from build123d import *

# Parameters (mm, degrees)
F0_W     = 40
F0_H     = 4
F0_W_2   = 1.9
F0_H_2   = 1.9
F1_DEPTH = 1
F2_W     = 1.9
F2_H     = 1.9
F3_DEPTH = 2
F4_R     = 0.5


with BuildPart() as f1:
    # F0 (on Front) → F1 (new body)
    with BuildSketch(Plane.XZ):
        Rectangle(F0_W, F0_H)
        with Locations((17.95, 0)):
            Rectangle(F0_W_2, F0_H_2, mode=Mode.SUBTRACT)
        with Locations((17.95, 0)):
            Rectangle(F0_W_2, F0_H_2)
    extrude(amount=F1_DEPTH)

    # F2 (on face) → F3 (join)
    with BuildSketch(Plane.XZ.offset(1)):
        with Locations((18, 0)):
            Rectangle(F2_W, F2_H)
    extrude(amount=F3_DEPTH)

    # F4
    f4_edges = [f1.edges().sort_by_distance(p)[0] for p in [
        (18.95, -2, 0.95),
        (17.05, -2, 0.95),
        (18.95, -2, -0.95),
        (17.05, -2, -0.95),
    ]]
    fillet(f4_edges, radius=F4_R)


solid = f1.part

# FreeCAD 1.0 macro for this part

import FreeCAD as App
import Part
import Sketcher
from FreeCAD import Vector


def edges_at(feature, points):
    """Names of the edges that pass closest to the given points."""
    edges = feature.Shape.Edges
    near = lambda p: min(range(len(edges)), key=lambda i: edges[i].distToShape(Part.Vertex(*p))[0])
    return sorted({f"Edge{near(p) + 1}" for p in points})


def add_polygon(sketch, points):
    """Adds a closed chain of lines whose ends are joined by coincident constraints."""
    first, n = sketch.GeometryCount, len(points)
    for a, b in zip(points, points[1:] + points[:1]):
        sketch.addGeometry(Part.LineSegment(App.Vector(*a, 0), App.Vector(*b, 0)), False)
    for i in range(n):
        sketch.addConstraint(Sketcher.Constraint("Coincident", first + i, 2, first + (i + 1) % n, 1))

doc = App.newDocument("Part")
body = doc.addObject("PartDesign::Body", "Body")

# Sketch on XZ plane
sketch1 = doc.addObject("Sketcher::SketchObject", "Sketch")
body.addObject(sketch1)
sketch1.AttachmentSupport = (doc.XZ_Plane, [""])
sketch1.MapMode = "FlatFace"
add_polygon(sketch1, [(-20, 2), (-20, -2), (20, -2), (20, 2)])  # lines 0-3
sketch1.addConstraint(Sketcher.Constraint("Vertical", 0))
sketch1.addConstraint(Sketcher.Constraint("Horizontal", 1))
sketch1.addConstraint(Sketcher.Constraint("Vertical", 2))
sketch1.addConstraint(Sketcher.Constraint("Horizontal", 3))
sketch1.addConstraint(Sketcher.Constraint("Symmetric", 0, 2, 2, 2, -1, 1))
sketch1.addConstraint(Sketcher.Constraint("DistanceX", 1, 1, 1, 2, 40.0))
sketch1.addConstraint(Sketcher.Constraint("DistanceY", 0, 2, 0, 1, 4.0))
pad1 = doc.addObject("PartDesign::Pad", "Pad")
body.addObject(pad1)
pad1.Profile = sketch1
pad1.Length = 1

# Sketch on XZ plane
sketch2 = doc.addObject("Sketcher::SketchObject", "Sketch001")
body.addObject(sketch2)
sketch2.AttachmentSupport = (doc.XZ_Plane, [""])
sketch2.MapMode = "FlatFace"
sketch2.AttachmentOffset = App.Placement(Vector(0, 0, 1), App.Rotation())
add_polygon(sketch2, [(17.1, 0.9), (17.1, -0.9), (18.9, -0.9), (18.9, 0.9)])  # lines 0-3
sketch2.addConstraint(Sketcher.Constraint("Vertical", 0))
sketch2.addConstraint(Sketcher.Constraint("Horizontal", 1))
sketch2.addConstraint(Sketcher.Constraint("Vertical", 2))
sketch2.addConstraint(Sketcher.Constraint("Horizontal", 3))
sketch2.addConstraint(Sketcher.Constraint("Equal", 3, 0))
sketch2.addConstraint(Sketcher.Constraint("DistanceX", 1, 1, 1, 2, 1.9))
sketch2.addConstraint(Sketcher.Constraint("DistanceX", -1, 1, 0, 2, 17.05))
sketch2.addConstraint(Sketcher.Constraint("DistanceY", 0, 2, -1, 1, 0.95))
pad2 = doc.addObject("PartDesign::Pad", "Pad001")
body.addObject(pad2)
pad2.Profile = sketch2
pad2.Length = 2
doc.recompute()

fillet = doc.addObject("PartDesign::Fillet", "Fillet")
body.addObject(fillet)
fillet.Base = (pad2, edges_at(pad2, [
    (18.95, -2, 0.95),
    (17.05, -2, 0.95),
    (18.95, -2, -0.95),
    (17.05, -2, -0.95),
]))
fillet.Radius = 0.5

doc.recompute()
